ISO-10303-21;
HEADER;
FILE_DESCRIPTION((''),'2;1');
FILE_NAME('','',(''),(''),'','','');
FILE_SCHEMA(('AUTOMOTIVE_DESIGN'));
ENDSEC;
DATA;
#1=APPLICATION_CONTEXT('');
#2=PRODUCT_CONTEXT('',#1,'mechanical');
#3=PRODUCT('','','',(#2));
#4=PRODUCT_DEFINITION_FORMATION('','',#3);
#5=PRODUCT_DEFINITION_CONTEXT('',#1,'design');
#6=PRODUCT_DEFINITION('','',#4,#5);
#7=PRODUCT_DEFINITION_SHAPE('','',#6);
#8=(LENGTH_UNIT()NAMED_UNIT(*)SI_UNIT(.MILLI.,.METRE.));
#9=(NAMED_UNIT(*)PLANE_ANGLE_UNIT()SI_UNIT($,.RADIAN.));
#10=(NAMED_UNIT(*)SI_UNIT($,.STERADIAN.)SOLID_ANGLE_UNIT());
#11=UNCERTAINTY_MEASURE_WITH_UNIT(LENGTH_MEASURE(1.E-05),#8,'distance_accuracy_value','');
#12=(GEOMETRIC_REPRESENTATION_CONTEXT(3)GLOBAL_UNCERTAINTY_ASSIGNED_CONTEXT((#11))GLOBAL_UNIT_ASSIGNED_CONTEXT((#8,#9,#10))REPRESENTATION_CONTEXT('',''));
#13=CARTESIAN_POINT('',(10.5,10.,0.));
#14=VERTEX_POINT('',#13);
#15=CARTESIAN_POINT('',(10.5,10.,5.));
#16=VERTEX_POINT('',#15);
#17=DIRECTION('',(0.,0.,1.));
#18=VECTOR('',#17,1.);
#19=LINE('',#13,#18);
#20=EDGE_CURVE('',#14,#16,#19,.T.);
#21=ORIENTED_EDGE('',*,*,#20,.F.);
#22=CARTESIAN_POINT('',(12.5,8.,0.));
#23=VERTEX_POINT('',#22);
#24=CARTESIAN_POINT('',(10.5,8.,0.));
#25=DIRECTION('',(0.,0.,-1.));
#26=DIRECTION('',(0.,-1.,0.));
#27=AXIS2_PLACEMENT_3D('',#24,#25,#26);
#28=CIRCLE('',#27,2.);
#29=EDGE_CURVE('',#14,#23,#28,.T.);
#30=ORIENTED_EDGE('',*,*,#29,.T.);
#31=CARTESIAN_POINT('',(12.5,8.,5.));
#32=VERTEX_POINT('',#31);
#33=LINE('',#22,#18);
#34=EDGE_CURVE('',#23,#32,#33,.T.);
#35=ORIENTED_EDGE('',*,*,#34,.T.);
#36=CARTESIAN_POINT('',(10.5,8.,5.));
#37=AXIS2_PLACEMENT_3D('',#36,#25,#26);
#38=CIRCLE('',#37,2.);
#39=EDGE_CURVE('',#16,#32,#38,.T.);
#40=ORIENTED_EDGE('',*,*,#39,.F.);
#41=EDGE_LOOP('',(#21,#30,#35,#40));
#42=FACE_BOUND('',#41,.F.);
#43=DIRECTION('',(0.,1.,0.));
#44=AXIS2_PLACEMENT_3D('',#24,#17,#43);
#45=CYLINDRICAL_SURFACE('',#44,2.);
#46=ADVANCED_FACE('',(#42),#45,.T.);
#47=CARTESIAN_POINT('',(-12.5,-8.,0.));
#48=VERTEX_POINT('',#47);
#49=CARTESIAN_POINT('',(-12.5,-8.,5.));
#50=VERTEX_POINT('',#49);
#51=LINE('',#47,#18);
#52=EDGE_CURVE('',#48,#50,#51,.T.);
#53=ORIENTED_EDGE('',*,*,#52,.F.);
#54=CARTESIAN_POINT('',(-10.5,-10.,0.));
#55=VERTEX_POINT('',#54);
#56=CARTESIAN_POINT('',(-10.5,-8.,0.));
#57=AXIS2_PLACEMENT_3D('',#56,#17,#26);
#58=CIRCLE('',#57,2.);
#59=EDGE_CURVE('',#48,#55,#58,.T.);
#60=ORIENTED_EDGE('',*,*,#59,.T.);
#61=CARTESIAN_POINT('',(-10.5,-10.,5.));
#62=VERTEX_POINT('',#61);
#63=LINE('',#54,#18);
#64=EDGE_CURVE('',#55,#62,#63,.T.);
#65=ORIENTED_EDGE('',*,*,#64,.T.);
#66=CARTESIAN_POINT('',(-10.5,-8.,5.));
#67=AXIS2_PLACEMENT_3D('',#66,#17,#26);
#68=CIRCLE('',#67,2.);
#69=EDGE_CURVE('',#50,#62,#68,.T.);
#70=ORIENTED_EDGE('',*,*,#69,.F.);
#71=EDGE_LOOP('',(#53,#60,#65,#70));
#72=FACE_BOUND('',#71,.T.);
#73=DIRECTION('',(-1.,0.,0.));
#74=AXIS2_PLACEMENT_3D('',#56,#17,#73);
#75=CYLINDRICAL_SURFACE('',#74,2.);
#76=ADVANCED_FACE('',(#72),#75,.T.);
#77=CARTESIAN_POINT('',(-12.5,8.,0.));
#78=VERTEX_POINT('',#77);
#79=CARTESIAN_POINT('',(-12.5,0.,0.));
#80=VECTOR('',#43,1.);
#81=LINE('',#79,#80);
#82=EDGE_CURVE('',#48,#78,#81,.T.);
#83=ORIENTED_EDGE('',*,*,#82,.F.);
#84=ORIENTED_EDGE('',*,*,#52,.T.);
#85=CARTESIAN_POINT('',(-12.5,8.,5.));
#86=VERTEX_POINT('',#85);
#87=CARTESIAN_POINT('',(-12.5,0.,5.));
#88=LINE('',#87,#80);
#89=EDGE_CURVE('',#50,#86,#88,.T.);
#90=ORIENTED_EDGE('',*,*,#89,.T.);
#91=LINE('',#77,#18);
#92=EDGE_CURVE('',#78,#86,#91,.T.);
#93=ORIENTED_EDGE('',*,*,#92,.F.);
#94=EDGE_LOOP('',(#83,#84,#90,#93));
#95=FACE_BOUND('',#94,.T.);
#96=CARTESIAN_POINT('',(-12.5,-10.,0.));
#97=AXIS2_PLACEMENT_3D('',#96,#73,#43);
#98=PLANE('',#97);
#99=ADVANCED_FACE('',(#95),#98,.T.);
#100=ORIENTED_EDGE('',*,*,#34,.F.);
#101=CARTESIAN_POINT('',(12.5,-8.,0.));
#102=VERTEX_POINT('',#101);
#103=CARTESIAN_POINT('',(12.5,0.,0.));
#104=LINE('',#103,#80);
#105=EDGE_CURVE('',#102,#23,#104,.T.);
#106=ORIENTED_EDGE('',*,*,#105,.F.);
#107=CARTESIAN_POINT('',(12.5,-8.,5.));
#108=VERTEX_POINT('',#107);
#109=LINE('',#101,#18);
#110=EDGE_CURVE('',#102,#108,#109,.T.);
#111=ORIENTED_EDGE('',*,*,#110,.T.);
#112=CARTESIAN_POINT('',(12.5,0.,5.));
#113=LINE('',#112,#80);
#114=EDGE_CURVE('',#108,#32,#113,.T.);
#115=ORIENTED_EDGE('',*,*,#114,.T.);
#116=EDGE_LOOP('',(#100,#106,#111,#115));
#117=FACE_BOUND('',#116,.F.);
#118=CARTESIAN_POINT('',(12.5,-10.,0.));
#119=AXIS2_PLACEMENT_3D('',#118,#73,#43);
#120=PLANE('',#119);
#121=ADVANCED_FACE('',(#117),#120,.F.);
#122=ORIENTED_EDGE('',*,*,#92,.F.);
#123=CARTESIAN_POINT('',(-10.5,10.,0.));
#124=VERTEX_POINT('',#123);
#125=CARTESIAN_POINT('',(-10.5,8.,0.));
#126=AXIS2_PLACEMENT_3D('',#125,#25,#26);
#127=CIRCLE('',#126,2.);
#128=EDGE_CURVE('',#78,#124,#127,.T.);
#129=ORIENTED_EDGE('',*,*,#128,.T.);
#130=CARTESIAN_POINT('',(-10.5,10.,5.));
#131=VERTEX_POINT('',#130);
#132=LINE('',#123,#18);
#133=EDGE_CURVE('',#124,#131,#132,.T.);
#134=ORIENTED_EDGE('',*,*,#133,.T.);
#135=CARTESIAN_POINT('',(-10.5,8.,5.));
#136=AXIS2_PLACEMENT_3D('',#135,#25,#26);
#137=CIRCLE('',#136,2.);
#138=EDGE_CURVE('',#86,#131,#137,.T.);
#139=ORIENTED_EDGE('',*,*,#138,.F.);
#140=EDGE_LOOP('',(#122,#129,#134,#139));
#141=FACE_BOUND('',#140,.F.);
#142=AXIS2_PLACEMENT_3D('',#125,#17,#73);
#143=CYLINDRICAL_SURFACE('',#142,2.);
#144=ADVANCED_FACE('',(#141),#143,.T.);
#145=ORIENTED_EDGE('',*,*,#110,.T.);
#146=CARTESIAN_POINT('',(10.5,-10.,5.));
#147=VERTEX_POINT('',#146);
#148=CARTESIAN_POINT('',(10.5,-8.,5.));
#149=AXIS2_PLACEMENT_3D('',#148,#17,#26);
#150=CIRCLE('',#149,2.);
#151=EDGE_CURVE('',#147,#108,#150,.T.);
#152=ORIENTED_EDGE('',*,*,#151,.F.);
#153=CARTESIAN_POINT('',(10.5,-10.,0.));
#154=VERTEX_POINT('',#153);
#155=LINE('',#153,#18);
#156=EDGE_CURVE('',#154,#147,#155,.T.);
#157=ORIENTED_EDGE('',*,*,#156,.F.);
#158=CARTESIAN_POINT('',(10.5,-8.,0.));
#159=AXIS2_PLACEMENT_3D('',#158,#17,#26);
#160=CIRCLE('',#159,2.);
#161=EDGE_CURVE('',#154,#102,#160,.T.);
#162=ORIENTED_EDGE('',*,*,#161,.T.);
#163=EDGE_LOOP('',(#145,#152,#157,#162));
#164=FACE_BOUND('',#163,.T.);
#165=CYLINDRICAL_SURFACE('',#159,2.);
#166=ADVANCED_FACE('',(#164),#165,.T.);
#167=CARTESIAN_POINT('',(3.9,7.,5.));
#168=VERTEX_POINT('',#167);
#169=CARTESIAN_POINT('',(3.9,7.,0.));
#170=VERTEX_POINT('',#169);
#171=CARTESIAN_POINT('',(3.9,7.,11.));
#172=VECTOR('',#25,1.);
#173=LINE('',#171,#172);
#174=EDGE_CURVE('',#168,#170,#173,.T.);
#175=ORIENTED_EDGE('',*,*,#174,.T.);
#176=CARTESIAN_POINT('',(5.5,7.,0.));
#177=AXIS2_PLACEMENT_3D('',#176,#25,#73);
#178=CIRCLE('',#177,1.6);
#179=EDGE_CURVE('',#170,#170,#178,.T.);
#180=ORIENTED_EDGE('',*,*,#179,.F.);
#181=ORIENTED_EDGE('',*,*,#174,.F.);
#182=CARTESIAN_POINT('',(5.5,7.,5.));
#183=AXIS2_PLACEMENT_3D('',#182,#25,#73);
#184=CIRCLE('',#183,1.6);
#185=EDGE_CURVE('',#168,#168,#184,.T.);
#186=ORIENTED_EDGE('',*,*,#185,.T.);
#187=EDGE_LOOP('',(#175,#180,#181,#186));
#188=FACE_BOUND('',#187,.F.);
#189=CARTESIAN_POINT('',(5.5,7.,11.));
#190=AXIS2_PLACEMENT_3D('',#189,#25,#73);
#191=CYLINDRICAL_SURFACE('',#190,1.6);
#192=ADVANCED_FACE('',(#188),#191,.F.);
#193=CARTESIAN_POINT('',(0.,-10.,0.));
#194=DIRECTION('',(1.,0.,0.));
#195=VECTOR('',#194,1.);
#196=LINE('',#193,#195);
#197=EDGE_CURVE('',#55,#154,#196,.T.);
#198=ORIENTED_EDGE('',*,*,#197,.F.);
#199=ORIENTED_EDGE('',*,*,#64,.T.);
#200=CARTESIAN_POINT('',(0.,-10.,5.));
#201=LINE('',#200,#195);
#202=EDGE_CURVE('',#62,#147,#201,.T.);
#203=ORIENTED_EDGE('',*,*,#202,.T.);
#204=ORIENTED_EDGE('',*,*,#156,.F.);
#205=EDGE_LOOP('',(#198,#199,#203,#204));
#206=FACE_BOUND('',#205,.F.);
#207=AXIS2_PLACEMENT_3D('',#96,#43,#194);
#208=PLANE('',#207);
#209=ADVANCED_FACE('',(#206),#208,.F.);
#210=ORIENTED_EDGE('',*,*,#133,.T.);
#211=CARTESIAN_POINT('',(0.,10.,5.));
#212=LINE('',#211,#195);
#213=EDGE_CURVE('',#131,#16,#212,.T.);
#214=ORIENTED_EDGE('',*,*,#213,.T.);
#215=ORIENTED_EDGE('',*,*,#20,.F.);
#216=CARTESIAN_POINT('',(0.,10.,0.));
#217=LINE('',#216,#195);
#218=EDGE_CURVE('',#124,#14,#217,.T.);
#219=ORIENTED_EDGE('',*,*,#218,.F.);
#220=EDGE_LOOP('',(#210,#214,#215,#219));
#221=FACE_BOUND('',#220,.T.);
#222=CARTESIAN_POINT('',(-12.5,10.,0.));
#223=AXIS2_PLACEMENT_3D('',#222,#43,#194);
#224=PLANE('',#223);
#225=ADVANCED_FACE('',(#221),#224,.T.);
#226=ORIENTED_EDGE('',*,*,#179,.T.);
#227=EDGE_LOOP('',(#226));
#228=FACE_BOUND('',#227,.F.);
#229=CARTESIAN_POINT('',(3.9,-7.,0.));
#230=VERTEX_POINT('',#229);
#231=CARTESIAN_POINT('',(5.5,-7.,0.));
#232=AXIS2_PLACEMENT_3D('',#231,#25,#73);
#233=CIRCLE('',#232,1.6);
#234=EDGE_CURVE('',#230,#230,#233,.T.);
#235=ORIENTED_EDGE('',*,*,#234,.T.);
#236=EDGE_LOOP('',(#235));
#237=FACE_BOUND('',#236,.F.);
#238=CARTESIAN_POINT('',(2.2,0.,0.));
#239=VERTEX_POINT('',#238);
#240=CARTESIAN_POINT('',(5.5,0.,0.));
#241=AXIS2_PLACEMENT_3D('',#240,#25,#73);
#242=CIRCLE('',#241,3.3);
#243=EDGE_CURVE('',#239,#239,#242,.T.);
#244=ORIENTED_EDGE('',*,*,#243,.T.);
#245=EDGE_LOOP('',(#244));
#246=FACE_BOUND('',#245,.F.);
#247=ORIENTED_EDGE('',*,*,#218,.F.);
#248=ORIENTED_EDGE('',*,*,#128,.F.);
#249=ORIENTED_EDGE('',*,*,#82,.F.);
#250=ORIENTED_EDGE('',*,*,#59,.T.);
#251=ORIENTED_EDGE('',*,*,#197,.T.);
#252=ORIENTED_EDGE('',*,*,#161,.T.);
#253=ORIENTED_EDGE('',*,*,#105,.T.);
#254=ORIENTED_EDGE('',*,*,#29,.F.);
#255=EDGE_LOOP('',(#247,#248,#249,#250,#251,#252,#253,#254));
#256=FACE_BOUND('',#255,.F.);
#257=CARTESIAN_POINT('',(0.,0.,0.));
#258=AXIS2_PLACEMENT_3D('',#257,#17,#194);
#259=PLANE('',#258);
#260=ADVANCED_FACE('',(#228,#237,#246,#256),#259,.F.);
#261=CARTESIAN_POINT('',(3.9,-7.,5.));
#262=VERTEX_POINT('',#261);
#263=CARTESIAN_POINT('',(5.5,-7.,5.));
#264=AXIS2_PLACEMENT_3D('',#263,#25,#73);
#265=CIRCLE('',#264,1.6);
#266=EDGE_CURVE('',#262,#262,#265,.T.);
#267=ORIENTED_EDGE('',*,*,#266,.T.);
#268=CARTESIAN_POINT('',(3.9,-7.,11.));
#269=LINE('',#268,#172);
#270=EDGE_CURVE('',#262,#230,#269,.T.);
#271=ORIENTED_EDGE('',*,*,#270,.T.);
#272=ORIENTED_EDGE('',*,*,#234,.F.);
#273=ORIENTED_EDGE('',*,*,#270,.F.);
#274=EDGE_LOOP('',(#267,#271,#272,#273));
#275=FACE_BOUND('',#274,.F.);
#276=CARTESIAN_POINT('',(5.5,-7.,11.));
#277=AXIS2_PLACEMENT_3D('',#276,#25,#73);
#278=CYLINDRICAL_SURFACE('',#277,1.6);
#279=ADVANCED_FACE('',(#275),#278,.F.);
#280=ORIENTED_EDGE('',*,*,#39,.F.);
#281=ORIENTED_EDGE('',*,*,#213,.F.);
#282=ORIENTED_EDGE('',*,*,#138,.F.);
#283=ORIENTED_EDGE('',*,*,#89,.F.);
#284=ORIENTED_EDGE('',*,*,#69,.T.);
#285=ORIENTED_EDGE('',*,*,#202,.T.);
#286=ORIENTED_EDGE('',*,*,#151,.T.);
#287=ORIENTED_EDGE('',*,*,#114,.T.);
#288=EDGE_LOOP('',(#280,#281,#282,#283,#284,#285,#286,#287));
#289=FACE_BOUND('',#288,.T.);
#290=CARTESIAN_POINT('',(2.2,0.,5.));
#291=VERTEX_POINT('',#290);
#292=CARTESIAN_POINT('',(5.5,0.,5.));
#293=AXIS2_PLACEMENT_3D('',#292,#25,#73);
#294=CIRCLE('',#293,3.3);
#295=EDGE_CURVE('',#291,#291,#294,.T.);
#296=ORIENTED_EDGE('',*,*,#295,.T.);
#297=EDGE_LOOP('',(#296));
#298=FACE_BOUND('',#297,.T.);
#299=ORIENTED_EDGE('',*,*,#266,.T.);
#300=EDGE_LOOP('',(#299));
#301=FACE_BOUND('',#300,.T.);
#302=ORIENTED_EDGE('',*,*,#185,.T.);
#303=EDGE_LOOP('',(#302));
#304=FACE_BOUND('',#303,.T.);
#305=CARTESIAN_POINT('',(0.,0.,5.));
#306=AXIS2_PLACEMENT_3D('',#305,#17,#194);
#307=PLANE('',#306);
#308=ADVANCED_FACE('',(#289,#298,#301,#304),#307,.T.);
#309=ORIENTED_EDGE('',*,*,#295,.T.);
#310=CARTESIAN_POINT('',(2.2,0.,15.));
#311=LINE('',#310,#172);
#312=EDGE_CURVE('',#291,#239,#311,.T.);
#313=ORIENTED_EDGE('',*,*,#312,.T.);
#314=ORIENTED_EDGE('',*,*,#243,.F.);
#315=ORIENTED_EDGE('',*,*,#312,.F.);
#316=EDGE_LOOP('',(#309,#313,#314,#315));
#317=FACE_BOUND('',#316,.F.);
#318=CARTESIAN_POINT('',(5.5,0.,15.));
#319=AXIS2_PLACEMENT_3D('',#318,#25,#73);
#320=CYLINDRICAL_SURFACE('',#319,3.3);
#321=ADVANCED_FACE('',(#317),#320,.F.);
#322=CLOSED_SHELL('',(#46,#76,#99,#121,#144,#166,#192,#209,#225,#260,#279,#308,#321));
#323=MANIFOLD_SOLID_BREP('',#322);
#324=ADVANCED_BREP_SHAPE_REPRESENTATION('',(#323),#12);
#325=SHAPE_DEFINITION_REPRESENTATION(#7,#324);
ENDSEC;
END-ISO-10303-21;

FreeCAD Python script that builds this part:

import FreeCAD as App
import Part
import Sketcher

V = App.Vector


def edges_at(feature, points):
    """Names of the edges that pass closest to the given points."""
    edges = feature.Shape.Edges
    near = lambda p: min(range(len(edges)), key=lambda i: edges[i].distToShape(Part.Vertex(*p))[0])
    return sorted({f"Edge{near(p) + 1}" for p in points})

doc = App.newDocument("Part")
body = doc.addObject("PartDesign::Body", "Body")

# Sketch on XY plane
sketch1 = doc.addObject("Sketcher::SketchObject", "Sketch")
body.addObject(sketch1)
sketch1.AttachmentSupport = (doc.XY_Plane, [""])
sketch1.MapMode = "FlatFace"
sketch1.addGeometry([
    Part.LineSegment(V(-12.5, 10, 0), V(-12.5, -10, 0)),
    Part.LineSegment(V(-12.5, -10, 0), V(12.5, -10, 0)),
    Part.LineSegment(V(12.5, -10, 0), V(12.5, 10, 0)),
    Part.LineSegment(V(12.5, 10, 0), V(-12.5, 10, 0)),
], False)
sketch1.addConstraint([
    Sketcher.Constraint("Coincident", 0, 2, 1, 1),
    Sketcher.Constraint("Coincident", 1, 2, 2, 1),
    Sketcher.Constraint("Coincident", 2, 2, 3, 1),
    Sketcher.Constraint("Coincident", 3, 2, 0, 1),
    Sketcher.Constraint("Vertical", 0),
    Sketcher.Constraint("Horizontal", 1),
    Sketcher.Constraint("Vertical", 2),
    Sketcher.Constraint("Horizontal", 3),
    Sketcher.Constraint("Symmetric", 0, 2, 2, 2, -1, 1),
    Sketcher.Constraint("DistanceX", 1, 1, 1, 2, 25.0),
    Sketcher.Constraint("DistanceY", 0, 2, 0, 1, 20.0),
])
pad1 = doc.addObject("PartDesign::Pad", "Pad")
body.addObject(pad1)
pad1.Profile = sketch1
pad1.Length = 5

# Sketch on XY plane
sketch2 = doc.addObject("Sketcher::SketchObject", "Sketch001")
body.addObject(sketch2)
sketch2.AttachmentSupport = (doc.XY_Plane, [""])
sketch2.MapMode = "FlatFace"
sketch2.AttachmentOffset = App.Placement(V(0, 0, 5), App.Rotation())
sketch2.addGeometry(Part.Circle(V(5.5, 0, 0), V(0, 0, 1), 3.3), False)
sketch2.addConstraint([
    Sketcher.Constraint("PointOnObject", 0, 3, -1),
    Sketcher.Constraint("Diameter", 0, 6.6),
    Sketcher.Constraint("DistanceX", -1, 1, 0, 3, 5.5),
])
doc.recompute()
hole = doc.addObject("PartDesign::Hole", "Hole")
body.addObject(hole)
hole.Profile = sketch2
hole.ThreadType = "None"
hole.Diameter = 6.6
hole.DepthType = "Dimension"
hole.Depth = 10
hole.DrillPoint = "Angled"
hole.DrillPointAngle = 118
doc.recompute()

fillet = doc.addObject("PartDesign::Fillet", "Fillet")
body.addObject(fillet)
fillet.Base = (hole, edges_at(hole, [
    (-12.5, -10, 2.5),
    (-12.5, 10, 2.5),
    (12.5, -10, 2.5),
    (12.5, 10, 2.5),
]))
fillet.Radius = 2

# Sketch on XY plane
sketch3 = doc.addObject("Sketcher::SketchObject", "Sketch002")
body.addObject(sketch3)
sketch3.AttachmentSupport = (doc.XY_Plane, [""])
sketch3.MapMode = "FlatFace"
sketch3.AttachmentOffset = App.Placement(V(0, 0, 5), App.Rotation())
sketch3.addGeometry([
    Part.Circle(V(5.5, 7, 0), V(0, 0, 1), 1.6),
    Part.Circle(V(5.5, -7, 0), V(0, 0, 1), 1.6),
], False)
sketch3.addConstraint([
    Sketcher.Constraint("Equal", 0, 1),
    Sketcher.Constraint("Symmetric", 0, 3, 1, 3, -1),
    Sketcher.Constraint("Diameter", 0, 3.2),
    Sketcher.Constraint("DistanceY", -1, 1, 0, 3, 7.0),
    Sketcher.Constraint("DistanceX", -1, 1, 0, 3, 5.5),
])
doc.recompute()
hole2 = doc.addObject("PartDesign::Hole", "Hole001")
body.addObject(hole2)
hole2.Profile = sketch3
hole2.ThreadType = "None"
hole2.Diameter = 3.2
hole2.DepthType = "Dimension"
hole2.Depth = 6
hole2.DrillPoint = "Angled"
hole2.DrillPointAngle = 118

doc.recompute()
